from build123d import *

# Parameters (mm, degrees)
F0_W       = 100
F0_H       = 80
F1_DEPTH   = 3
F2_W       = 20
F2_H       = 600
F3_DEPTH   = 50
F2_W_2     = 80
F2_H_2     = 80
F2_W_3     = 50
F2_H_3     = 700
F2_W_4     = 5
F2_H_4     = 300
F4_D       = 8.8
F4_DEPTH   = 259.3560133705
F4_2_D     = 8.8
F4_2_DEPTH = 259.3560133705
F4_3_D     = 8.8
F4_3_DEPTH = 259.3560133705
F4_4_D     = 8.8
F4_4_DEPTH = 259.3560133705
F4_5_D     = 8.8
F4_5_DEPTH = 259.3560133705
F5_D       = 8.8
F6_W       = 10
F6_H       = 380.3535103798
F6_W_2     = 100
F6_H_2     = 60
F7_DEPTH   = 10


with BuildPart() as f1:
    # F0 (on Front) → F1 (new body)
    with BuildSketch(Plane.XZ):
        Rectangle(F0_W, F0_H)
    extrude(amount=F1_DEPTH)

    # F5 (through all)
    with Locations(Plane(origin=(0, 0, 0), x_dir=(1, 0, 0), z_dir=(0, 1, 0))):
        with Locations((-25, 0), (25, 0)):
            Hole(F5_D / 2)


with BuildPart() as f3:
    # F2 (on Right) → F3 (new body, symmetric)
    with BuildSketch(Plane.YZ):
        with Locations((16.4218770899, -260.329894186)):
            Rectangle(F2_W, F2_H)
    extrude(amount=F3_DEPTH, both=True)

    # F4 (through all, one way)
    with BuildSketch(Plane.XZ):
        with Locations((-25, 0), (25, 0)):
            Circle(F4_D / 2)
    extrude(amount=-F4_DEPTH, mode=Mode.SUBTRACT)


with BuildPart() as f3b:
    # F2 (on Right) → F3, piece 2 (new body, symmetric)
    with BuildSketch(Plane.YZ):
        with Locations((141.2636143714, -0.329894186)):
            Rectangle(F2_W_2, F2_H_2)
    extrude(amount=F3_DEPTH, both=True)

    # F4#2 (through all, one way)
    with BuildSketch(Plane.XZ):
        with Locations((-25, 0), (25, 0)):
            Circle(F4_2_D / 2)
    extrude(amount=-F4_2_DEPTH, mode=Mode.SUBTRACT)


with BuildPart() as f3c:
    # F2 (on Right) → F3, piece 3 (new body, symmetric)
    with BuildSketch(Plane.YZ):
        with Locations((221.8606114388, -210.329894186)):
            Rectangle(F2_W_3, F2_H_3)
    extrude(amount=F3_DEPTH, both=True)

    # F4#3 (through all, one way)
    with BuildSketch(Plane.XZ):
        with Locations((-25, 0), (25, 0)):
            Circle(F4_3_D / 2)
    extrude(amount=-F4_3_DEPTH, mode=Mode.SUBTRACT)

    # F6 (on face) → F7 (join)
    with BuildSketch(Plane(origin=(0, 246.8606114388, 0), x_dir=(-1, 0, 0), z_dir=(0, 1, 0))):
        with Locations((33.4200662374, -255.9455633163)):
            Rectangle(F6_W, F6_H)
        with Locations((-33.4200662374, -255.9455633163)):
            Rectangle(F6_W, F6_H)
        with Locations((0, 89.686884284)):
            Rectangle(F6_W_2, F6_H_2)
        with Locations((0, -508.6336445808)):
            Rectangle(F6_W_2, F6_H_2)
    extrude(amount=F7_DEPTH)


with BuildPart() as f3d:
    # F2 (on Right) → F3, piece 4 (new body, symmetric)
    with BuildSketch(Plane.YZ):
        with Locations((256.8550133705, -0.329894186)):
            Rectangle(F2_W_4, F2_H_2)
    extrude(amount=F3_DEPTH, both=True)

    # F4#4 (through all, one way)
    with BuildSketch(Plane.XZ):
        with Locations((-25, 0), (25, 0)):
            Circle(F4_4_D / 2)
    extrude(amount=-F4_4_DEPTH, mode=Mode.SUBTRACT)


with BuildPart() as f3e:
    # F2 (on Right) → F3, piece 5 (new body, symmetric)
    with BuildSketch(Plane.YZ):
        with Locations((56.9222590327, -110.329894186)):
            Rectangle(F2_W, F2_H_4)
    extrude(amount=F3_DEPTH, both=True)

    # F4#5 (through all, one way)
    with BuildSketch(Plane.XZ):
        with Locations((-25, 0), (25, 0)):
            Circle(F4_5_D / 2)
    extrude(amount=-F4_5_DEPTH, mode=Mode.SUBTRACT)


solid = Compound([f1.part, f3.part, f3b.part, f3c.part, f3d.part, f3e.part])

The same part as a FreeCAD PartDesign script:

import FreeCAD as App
import Part
import Sketcher

V = App.Vector
Q = App.Units.Quantity

doc = App.newDocument("Part")
params = doc.addObject("Spreadsheet::Sheet", "Params")
for row, (alias, value) in enumerate([
    ("sketch1_width", "100 mm"),
    ("sketch1_height", "80 mm"),
    ("pad1_length", "3 mm"),
    ("sketch2_diameter", "8.8 mm"),
    ("hole_diameter", "8.8 mm"),
    ("sketch3_width", "20 mm"),
    ("sketch3_height", "600 mm"),
    ("pad2_length", "100 mm"),
    ("sketch4_diameter", "8.8 mm"),
    ("sketch5_width", "80 mm"),
    ("pad3_length", "100 mm"),
    ("sketch6_diameter", "8.8 mm"),
    ("sketch7_width", "50 mm"),
    ("sketch7_height", "700 mm"),
    ("pad4_length", "100 mm"),
    ("sketch8_diameter", "8.8 mm"),
    ("sketch9_width", "10 mm"),
    ("sketch9_width2", "100 mm"),
    ("sketch9_height", "60 mm"),
    ("pad5_length", "10 mm"),
    ("sketch10_width", "5 mm"),
    ("sketch10_height", "80 mm"),
    ("pad6_length", "100 mm"),
    ("sketch11_diameter", "8.8 mm"),
    ("sketch12_width", "20 mm"),
    ("sketch12_height", "300 mm"),
    ("pad7_length", "100 mm"),
    ("sketch13_diameter", "8.8 mm"),
], start=1):
    params.set(f"A{row}", alias)
    params.set(f"B{row}", "=" + value)
    params.setAlias(f"B{row}", alias)

body = doc.addObject("PartDesign::Body", "Body")

# Sketch on XZ plane
sketch1 = doc.addObject("Sketcher::SketchObject", "Sketch")
body.addObject(sketch1)
sketch1.AttachmentSupport = (doc.XZ_Plane, [""])
sketch1.MapMode = "FlatFace"
sketch1.addGeometry([
    Part.LineSegment(V(-50, 40, 0), V(-50, -40, 0)),
    Part.LineSegment(V(-50, -40, 0), V(50, -40, 0)),
    Part.LineSegment(V(50, -40, 0), V(50, 40, 0)),
    Part.LineSegment(V(50, 40, 0), V(-50, 40, 0)),
], False)
sketch1.addConstraint([
    Sketcher.Constraint("Coincident", 0, 2, 1, 1),
    Sketcher.Constraint("Coincident", 1, 2, 2, 1),
    Sketcher.Constraint("Coincident", 2, 2, 3, 1),
    Sketcher.Constraint("Coincident", 3, 2, 0, 1),
    Sketcher.Constraint("Vertical", 0),
    Sketcher.Constraint("Horizontal", 1),
    Sketcher.Constraint("Vertical", 2),
    Sketcher.Constraint("Horizontal", 3),
    Sketcher.Constraint("Symmetric", 0, 2, 2, 2, -1, 1),
    Sketcher.Constraint("DistanceX", 1, 1, 1, 2, Q("100 mm")),
    Sketcher.Constraint("DistanceY", 0, 2, 0, 1, Q("80 mm")),
])
sketch1.setExpression("Constraints[9]", "Params.sketch1_width")
sketch1.setExpression("Constraints[10]", "Params.sketch1_height")
pad1 = doc.addObject("PartDesign::Pad", "Pad")
body.addObject(pad1)
pad1.Profile = sketch1
pad1.setExpression("Length", "Params.pad1_length")

# Sketch on XZ plane
sketch2 = doc.addObject("Sketcher::SketchObject", "Sketch001")
body.addObject(sketch2)
sketch2.AttachmentSupport = (doc.XZ_Plane, [""])
sketch2.MapMode = "FlatFace"
sketch2.addGeometry([
    Part.Circle(V(-25, 0, 0), V(0, 0, 1), 4.4),
    Part.Circle(V(25, 0, 0), V(0, 0, 1), 4.4),
], False)
sketch2.addConstraint([
    Sketcher.Constraint("Equal", 0, 1),
    Sketcher.Constraint("Symmetric", 0, 3, 1, 3, -1, 1),
    Sketcher.Constraint("PointOnObject", 0, 3, -1),
    Sketcher.Constraint("Diameter", 0, Q("8.8 mm")),
    Sketcher.Constraint("DistanceX", 0, 3, -1, 1, Q("25 mm")),
])
sketch2.setExpression("Constraints[3]", "Params.sketch2_diameter")
doc.recompute()
hole = doc.addObject("PartDesign::Hole", "Hole")
body.addObject(hole)
hole.Profile = sketch2
hole.ThreadType = "None"
hole.setExpression("Diameter", "Params.hole_diameter")
hole.DepthType = "ThroughAll"
hole.Reversed = True
body2 = doc.addObject("PartDesign::Body", "Body001")

# Sketch on YZ plane
sketch3 = doc.addObject("Sketcher::SketchObject", "Sketch002")
body2.addObject(sketch3)
sketch3.AttachmentSupport = (doc.getObject("YZ_Plane001"), [""])
sketch3.MapMode = "FlatFace"
sketch3.addGeometry([
    Part.LineSegment(V(6, 40, 0), V(6, -560, 0)),
    Part.LineSegment(V(6, -560, 0), V(26, -560, 0)),
    Part.LineSegment(V(26, -560, 0), V(26, 40, 0)),
    Part.LineSegment(V(26, 40, 0), V(6, 40, 0)),
], False)
sketch3.addConstraint([
    Sketcher.Constraint("Coincident", 0, 2, 1, 1),
    Sketcher.Constraint("Coincident", 1, 2, 2, 1),
    Sketcher.Constraint("Coincident", 2, 2, 3, 1),
    Sketcher.Constraint("Coincident", 3, 2, 0, 1),
    Sketcher.Constraint("Vertical", 0),
    Sketcher.Constraint("Horizontal", 1),
    Sketcher.Constraint("Vertical", 2),
    Sketcher.Constraint("Horizontal", 3),
    Sketcher.Constraint("DistanceX", 1, 1, 1, 2, Q("20 mm")),
    Sketcher.Constraint("DistanceY", 0, 2, 0, 1, Q("600 mm")),
    Sketcher.Constraint("DistanceX", -1, 1, 0, 2, Q("6.421877 mm")),
    Sketcher.Constraint("DistanceY", 0, 2, -1, 1, Q("560.329894 mm")),
])
sketch3.setExpression("Constraints[8]", "Params.sketch3_width")
sketch3.setExpression("Constraints[9]", "Params.sketch3_height")
pad2 = doc.addObject("PartDesign::Pad", "Pad001")
body2.addObject(pad2)
pad2.Profile = sketch3
pad2.setExpression("Length", "Params.pad2_length")
pad2.Midplane = True

# Sketch on XZ plane
sketch4 = doc.addObject("Sketcher::SketchObject", "Sketch003")
body2.addObject(sketch4)
sketch4.AttachmentSupport = (doc.getObject("XZ_Plane001"), [""])
sketch4.MapMode = "FlatFace"
sketch4.addGeometry([
    Part.Circle(V(25, 0, 0), V(0, 0, 1), 4.4),
    Part.Circle(V(-25, 0, 0), V(0, 0, 1), 4.4),
], False)
sketch4.addConstraint([
    Sketcher.Constraint("Equal", 0, 1),
    Sketcher.Constraint("Symmetric", 0, 3, 1, 3, -1, 1),
    Sketcher.Constraint("PointOnObject", 0, 3, -1),
    Sketcher.Constraint("Diameter", 0, Q("8.8 mm")),
    Sketcher.Constraint("DistanceX", -1, 1, 0, 3, Q("25 mm")),
])
sketch4.setExpression("Constraints[3]", "Params.sketch4_diameter")
pocket1 = doc.addObject("PartDesign::Pocket", "Pocket")
body2.addObject(pocket1)
pocket1.Profile = sketch4
pocket1.Type = "ThroughAll"
body3 = doc.addObject("PartDesign::Body", "Body002")

# Sketch on YZ plane
sketch5 = doc.addObject("Sketcher::SketchObject", "Sketch004")
body3.addObject(sketch5)
sketch5.AttachmentSupport = (doc.getObject("YZ_Plane002"), [""])
sketch5.MapMode = "FlatFace"
sketch5.addGeometry([
    Part.LineSegment(V(101, 40, 0), V(101, -40, 0)),
    Part.LineSegment(V(101, -40, 0), V(181, -40, 0)),
    Part.LineSegment(V(181, -40, 0), V(181, 40, 0)),
    Part.LineSegment(V(181, 40, 0), V(101, 40, 0)),
], False)
sketch5.addConstraint([
    Sketcher.Constraint("Coincident", 0, 2, 1, 1),
    Sketcher.Constraint("Coincident", 1, 2, 2, 1),
    Sketcher.Constraint("Coincident", 2, 2, 3, 1),
    Sketcher.Constraint("Coincident", 3, 2, 0, 1),
    Sketcher.Constraint("Vertical", 0),
    Sketcher.Constraint("Horizontal", 1),
    Sketcher.Constraint("Vertical", 2),
    Sketcher.Constraint("Horizontal", 3),
    Sketcher.Constraint("Equal", 3, 0),
    Sketcher.Constraint("DistanceX", 1, 1, 1, 2, Q("80 mm")),
    Sketcher.Constraint("DistanceX", -1, 1, 0, 2, Q("101.263614 mm")),
    Sketcher.Constraint("DistanceY", 0, 2, -1, 1, Q("40.329894 mm")),
])
sketch5.setExpression("Constraints[9]", "Params.sketch5_width")
pad3 = doc.addObject("PartDesign::Pad", "Pad002")
body3.addObject(pad3)
pad3.Profile = sketch5
pad3.setExpression("Length", "Params.pad3_length")
pad3.Midplane = True

# Sketch on XZ plane
sketch6 = doc.addObject("Sketcher::SketchObject", "Sketch005")
body3.addObject(sketch6)
sketch6.AttachmentSupport = (doc.getObject("XZ_Plane002"), [""])
sketch6.MapMode = "FlatFace"
sketch6.addGeometry([
    Part.Circle(V(25, 0, 0), V(0, 0, 1), 4.4),
    Part.Circle(V(-25, 0, 0), V(0, 0, 1), 4.4),
], False)
sketch6.addConstraint([
    Sketcher.Constraint("Equal", 0, 1),
    Sketcher.Constraint("Symmetric", 0, 3, 1, 3, -1, 1),
    Sketcher.Constraint("PointOnObject", 0, 3, -1),
    Sketcher.Constraint("Diameter", 0, Q("8.8 mm")),
    Sketcher.Constraint("DistanceX", -1, 1, 0, 3, Q("25 mm")),
])
sketch6.setExpression("Constraints[3]", "Params.sketch6_diameter")
pocket2 = doc.addObject("PartDesign::Pocket", "Pocket001")
body3.addObject(pocket2)
pocket2.Profile = sketch6
pocket2.Type = "ThroughAll"
body4 = doc.addObject("PartDesign::Body", "Body003")

# Sketch on YZ plane
sketch7 = doc.addObject("Sketcher::SketchObject", "Sketch006")
body4.addObject(sketch7)
sketch7.AttachmentSupport = (doc.getObject("YZ_Plane003"), [""])
sketch7.MapMode = "FlatFace"
sketch7.addGeometry([
    Part.LineSegment(V(197, 140, 0), V(197, -560, 0)),
    Part.LineSegment(V(197, -560, 0), V(247, -560, 0)),
    Part.LineSegment(V(247, -560, 0), V(247, 140, 0)),
    Part.LineSegment(V(247, 140, 0), V(197, 140, 0)),
], False)
sketch7.addConstraint([
    Sketcher.Constraint("Coincident", 0, 2, 1, 1),
    Sketcher.Constraint("Coincident", 1, 2, 2, 1),
    Sketcher.Constraint("Coincident", 2, 2, 3, 1),
    Sketcher.Constraint("Coincident", 3, 2, 0, 1),
    Sketcher.Constraint("Vertical", 0),
    Sketcher.Constraint("Horizontal", 1),
    Sketcher.Constraint("Vertical", 2),
    Sketcher.Constraint("Horizontal", 3),
    Sketcher.Constraint("DistanceX", 1, 1, 1, 2, Q("50 mm")),
    Sketcher.Constraint("DistanceY", 0, 2, 0, 1, Q("700 mm")),
    Sketcher.Constraint("DistanceX", -1, 1, 0, 2, Q("196.860611 mm")),
    Sketcher.Constraint("DistanceY", 0, 2, -1, 1, Q("560.329894 mm")),
])
sketch7.setExpression("Constraints[8]", "Params.sketch7_width")
sketch7.setExpression("Constraints[9]", "Params.sketch7_height")
pad4 = doc.addObject("PartDesign::Pad", "Pad003")
body4.addObject(pad4)
pad4.Profile = sketch7
pad4.setExpression("Length", "Params.pad4_length")
pad4.Midplane = True

# Sketch on XZ plane
sketch8 = doc.addObject("Sketcher::SketchObject", "Sketch007")
body4.addObject(sketch8)
sketch8.AttachmentSupport = (doc.getObject("XZ_Plane003"), [""])
sketch8.MapMode = "FlatFace"
sketch8.addGeometry([
    Part.Circle(V(25, 0, 0), V(0, 0, 1), 4.4),
    Part.Circle(V(-25, 0, 0), V(0, 0, 1), 4.4),
], False)
sketch8.addConstraint([
    Sketcher.Constraint("Equal", 0, 1),
    Sketcher.Constraint("Symmetric", 0, 3, 1, 3, -1, 1),
    Sketcher.Constraint("PointOnObject", 0, 3, -1),
    Sketcher.Constraint("Diameter", 0, Q("8.8 mm")),
    Sketcher.Constraint("DistanceX", -1, 1, 0, 3, Q("25 mm")),
])
sketch8.setExpression("Constraints[3]", "Params.sketch8_diameter")
pocket3 = doc.addObject("PartDesign::Pocket", "Pocket002")
body4.addObject(pocket3)
pocket3.Profile = sketch8
pocket3.Type = "ThroughAll"

# Sketch on XZ plane
sketch9 = doc.addObject("Sketcher::SketchObject", "Sketch008")
body4.addObject(sketch9)
sketch9.AttachmentSupport = (doc.getObject("XZ_Plane003"), [""])
sketch9.MapMode = "FlatFace"
sketch9.AttachmentOffset = App.Placement(V(0, 0, -246.860611), App.Rotation())
sketch9.addGeometry([
    Part.LineSegment(V(-28, -66, 0), V(-28, -446, 0)),  # 0
    Part.LineSegment(V(-28, -446, 0), V(-38, -446, 0)),  # 1
    Part.LineSegment(V(-38, -446, 0), V(-38, -66, 0)),  # 2
    Part.LineSegment(V(-38, -66, 0), V(-28, -66, 0)),  # 3
    Part.LineSegment(V(38, -66, 0), V(38, -446, 0)),  # 4
    Part.LineSegment(V(38, -446, 0), V(28, -446, 0)),  # 5
    Part.LineSegment(V(28, -446, 0), V(28, -66, 0)),  # 6
    Part.LineSegment(V(28, -66, 0), V(38, -66, 0)),  # 7
    Part.LineSegment(V(50, 120, 0), V(50, 60, 0)),  # 8
    Part.LineSegment(V(50, 60, 0), V(-50, 60, 0)),  # 9
    Part.LineSegment(V(-50, 60, 0), V(-50, 120, 0)),  # 10
    Part.LineSegment(V(-50, 120, 0), V(50, 120, 0)),  # 11
    Part.LineSegment(V(50, -479, 0), V(50, -539, 0)),  # 12
    Part.LineSegment(V(50, -539, 0), V(-50, -539, 0)),  # 13
    Part.LineSegment(V(-50, -539, 0), V(-50, -479, 0)),  # 14
    Part.LineSegment(V(-50, -479, 0), V(50, -479, 0)),  # 15
], False)
sketch9.addConstraint([
    Sketcher.Constraint("Coincident", 0, 2, 1, 1),
    Sketcher.Constraint("Coincident", 1, 2, 2, 1),
    Sketcher.Constraint("Coincident", 2, 2, 3, 1),
    Sketcher.Constraint("Coincident", 3, 2, 0, 1),
    Sketcher.Constraint("Coincident", 4, 2, 5, 1),
    Sketcher.Constraint("Coincident", 5, 2, 6, 1),
    Sketcher.Constraint("Coincident", 6, 2, 7, 1),
    Sketcher.Constraint("Coincident", 7, 2, 4, 1),
    Sketcher.Constraint("Coincident", 8, 2, 9, 1),
    Sketcher.Constraint("Coincident", 9, 2, 10, 1),
    Sketcher.Constraint("Coincident", 10, 2, 11, 1),
    Sketcher.Constraint("Coincident", 11, 2, 8, 1),
    Sketcher.Constraint("Coincident", 12, 2, 13, 1),
    Sketcher.Constraint("Coincident", 13, 2, 14, 1),
    Sketcher.Constraint("Coincident", 14, 2, 15, 1),
    Sketcher.Constraint("Coincident", 15, 2, 12, 1),
    Sketcher.Constraint("Vertical", 0),
    Sketcher.Constraint("Horizontal", 1),
    Sketcher.Constraint("Vertical", 2),
    Sketcher.Constraint("Horizontal", 3),
    Sketcher.Constraint("Vertical", 4),
    Sketcher.Constraint("Horizontal", 5),
    Sketcher.Constraint("Vertical", 6),
    Sketcher.Constraint("Horizontal", 7),
    Sketcher.Constraint("Vertical", 8),
    Sketcher.Constraint("Horizontal", 9),
    Sketcher.Constraint("Vertical", 10),
    Sketcher.Constraint("Horizontal", 11),
    Sketcher.Constraint("Vertical", 12),
    Sketcher.Constraint("Horizontal", 13),
    Sketcher.Constraint("Vertical", 14),
    Sketcher.Constraint("Horizontal", 15),
    Sketcher.Constraint("Symmetric", 1, 2, 4, 2, -2),
    Sketcher.Constraint("Symmetric", 3, 2, 6, 2, -2),
    Sketcher.Constraint("Vertical", 11, 2, 12, 2),
    Sketcher.Constraint("Vertical", 10, 2, 13, 2),
    Sketcher.Constraint("Equal", 10, 12),
    Sketcher.Constraint("DistanceX", 1, 2, 1, 1, Q("10 mm")),
    Sketcher.Constraint("DistanceX", 9, 2, 9, 1, Q("100 mm")),
    Sketcher.Constraint("DistanceY", 8, 2, 8, 1, Q("60 mm")),
    Sketcher.Constraint("DistanceX", -1, 1, 8, 2, Q("50 mm")),
    Sketcher.Constraint("DistanceY", 0, 2, 0, 1, Q("380.35351 mm")),
    Sketcher.Constraint("DistanceY", 0, 2, -1, 1, Q("446.122319 mm")),
    Sketcher.Constraint("DistanceX", 0, 2, -1, 1, Q("28.420066 mm")),
    Sketcher.Constraint("DistanceY", -1, 1, 8, 2, Q("59.686884 mm")),
    Sketcher.Constraint("DistanceY", 12, 2, -1, 1, Q("538.633645 mm")),
])
sketch9.setExpression("Constraints[37]", "Params.sketch9_width")
sketch9.setExpression("Constraints[38]", "Params.sketch9_width2")
sketch9.setExpression("Constraints[39]", "Params.sketch9_height")
pad5 = doc.addObject("PartDesign::Pad", "Pad004")
body4.addObject(pad5)
pad5.Profile = sketch9
pad5.setExpression("Length", "Params.pad5_length")
pad5.Reversed = True
body5 = doc.addObject("PartDesign::Body", "Body004")

# Sketch on YZ plane
sketch10 = doc.addObject("Sketcher::SketchObject", "Sketch009")
body5.addObject(sketch10)
sketch10.AttachmentSupport = (doc.getObject("YZ_Plane004"), [""])
sketch10.MapMode = "FlatFace"
sketch10.addGeometry([
    Part.LineSegment(V(254, 40, 0), V(254, -40, 0)),
    Part.LineSegment(V(254, -40, 0), V(259, -40, 0)),
    Part.LineSegment(V(259, -40, 0), V(259, 40, 0)),
    Part.LineSegment(V(259, 40, 0), V(254, 40, 0)),
], False)
sketch10.addConstraint([
    Sketcher.Constraint("Coincident", 0, 2, 1, 1),
    Sketcher.Constraint("Coincident", 1, 2, 2, 1),
    Sketcher.Constraint("Coincident", 2, 2, 3, 1),
    Sketcher.Constraint("Coincident", 3, 2, 0, 1),
    Sketcher.Constraint("Vertical", 0),
    Sketcher.Constraint("Horizontal", 1),
    Sketcher.Constraint("Vertical", 2),
    Sketcher.Constraint("Horizontal", 3),
    Sketcher.Constraint("DistanceX", 1, 1, 1, 2, Q("5 mm")),
    Sketcher.Constraint("DistanceY", 0, 2, 0, 1, Q("80 mm")),
    Sketcher.Constraint("DistanceX", -1, 1, 0, 2, Q("254.355013 mm")),
    Sketcher.Constraint("DistanceY", 0, 2, -1, 1, Q("40.329894 mm")),
])
sketch10.setExpression("Constraints[8]", "Params.sketch10_width")
sketch10.setExpression("Constraints[9]", "Params.sketch10_height")
pad6 = doc.addObject("PartDesign::Pad", "Pad005")
body5.addObject(pad6)
pad6.Profile = sketch10
pad6.setExpression("Length", "Params.pad6_length")
pad6.Midplane = True

# Sketch on XZ plane
sketch11 = doc.addObject("Sketcher::SketchObject", "Sketch010")
body5.addObject(sketch11)
sketch11.AttachmentSupport = (doc.getObject("XZ_Plane004"), [""])
sketch11.MapMode = "FlatFace"
sketch11.addGeometry([
    Part.Circle(V(25, 0, 0), V(0, 0, 1), 4.4),
    Part.Circle(V(-25, 0, 0), V(0, 0, 1), 4.4),
], False)
sketch11.addConstraint([
    Sketcher.Constraint("Equal", 0, 1),
    Sketcher.Constraint("Symmetric", 0, 3, 1, 3, -1, 1),
    Sketcher.Constraint("PointOnObject", 0, 3, -1),
    Sketcher.Constraint("Diameter", 0, Q("8.8 mm")),
    Sketcher.Constraint("DistanceX", -1, 1, 0, 3, Q("25 mm")),
])
sketch11.setExpression("Constraints[3]", "Params.sketch11_diameter")
pocket4 = doc.addObject("PartDesign::Pocket", "Pocket003")
body5.addObject(pocket4)
pocket4.Profile = sketch11
pocket4.Type = "ThroughAll"
body6 = doc.addObject("PartDesign::Body", "Body005")

# Sketch on YZ plane
sketch12 = doc.addObject("Sketcher::SketchObject", "Sketch011")
body6.addObject(sketch12)
sketch12.AttachmentSupport = (doc.getObject("YZ_Plane005"), [""])
sketch12.MapMode = "FlatFace"
sketch12.addGeometry([
    Part.LineSegment(V(47, 40, 0), V(47, -260, 0)),
    Part.LineSegment(V(47, -260, 0), V(67, -260, 0)),
    Part.LineSegment(V(67, -260, 0), V(67, 40, 0)),
    Part.LineSegment(V(67, 40, 0), V(47, 40, 0)),
], False)
sketch12.addConstraint([
    Sketcher.Constraint("Coincident", 0, 2, 1, 1),
    Sketcher.Constraint("Coincident", 1, 2, 2, 1),
    Sketcher.Constraint("Coincident", 2, 2, 3, 1),
    Sketcher.Constraint("Coincident", 3, 2, 0, 1),
    Sketcher.Constraint("Vertical", 0),
    Sketcher.Constraint("Horizontal", 1),
    Sketcher.Constraint("Vertical", 2),
    Sketcher.Constraint("Horizontal", 3),
    Sketcher.Constraint("DistanceX", 1, 1, 1, 2, Q("20 mm")),
    Sketcher.Constraint("DistanceY", 0, 2, 0, 1, Q("300 mm")),
    Sketcher.Constraint("DistanceX", -1, 1, 0, 2, Q("46.922259 mm")),
    Sketcher.Constraint("DistanceY", 0, 2, -1, 1, Q("260.329894 mm")),
])
sketch12.setExpression("Constraints[8]", "Params.sketch12_width")
sketch12.setExpression("Constraints[9]", "Params.sketch12_height")
pad7 = doc.addObject("PartDesign::Pad", "Pad006")
body6.addObject(pad7)
pad7.Profile = sketch12
pad7.setExpression("Length", "Params.pad7_length")
pad7.Midplane = True

# Sketch on XZ plane
sketch13 = doc.addObject("Sketcher::SketchObject", "Sketch012")
body6.addObject(sketch13)
sketch13.AttachmentSupport = (doc.getObject("XZ_Plane005"), [""])
sketch13.MapMode = "FlatFace"
sketch13.addGeometry([
    Part.Circle(V(25, 0, 0), V(0, 0, 1), 4.4),
    Part.Circle(V(-25, 0, 0), V(0, 0, 1), 4.4),
], False)
sketch13.addConstraint([
    Sketcher.Constraint("Equal", 0, 1),
    Sketcher.Constraint("Symmetric", 0, 3, 1, 3, -1, 1),
    Sketcher.Constraint("PointOnObject", 0, 3, -1),
    Sketcher.Constraint("Diameter", 0, Q("8.8 mm")),
    Sketcher.Constraint("DistanceX", -1, 1, 0, 3, Q("25 mm")),
])
sketch13.setExpression("Constraints[3]", "Params.sketch13_diameter")
pocket5 = doc.addObject("PartDesign::Pocket", "Pocket004")
body6.addObject(pocket5)
pocket5.Profile = sketch13
pocket5.Type = "ThroughAll"

doc.recompute()
